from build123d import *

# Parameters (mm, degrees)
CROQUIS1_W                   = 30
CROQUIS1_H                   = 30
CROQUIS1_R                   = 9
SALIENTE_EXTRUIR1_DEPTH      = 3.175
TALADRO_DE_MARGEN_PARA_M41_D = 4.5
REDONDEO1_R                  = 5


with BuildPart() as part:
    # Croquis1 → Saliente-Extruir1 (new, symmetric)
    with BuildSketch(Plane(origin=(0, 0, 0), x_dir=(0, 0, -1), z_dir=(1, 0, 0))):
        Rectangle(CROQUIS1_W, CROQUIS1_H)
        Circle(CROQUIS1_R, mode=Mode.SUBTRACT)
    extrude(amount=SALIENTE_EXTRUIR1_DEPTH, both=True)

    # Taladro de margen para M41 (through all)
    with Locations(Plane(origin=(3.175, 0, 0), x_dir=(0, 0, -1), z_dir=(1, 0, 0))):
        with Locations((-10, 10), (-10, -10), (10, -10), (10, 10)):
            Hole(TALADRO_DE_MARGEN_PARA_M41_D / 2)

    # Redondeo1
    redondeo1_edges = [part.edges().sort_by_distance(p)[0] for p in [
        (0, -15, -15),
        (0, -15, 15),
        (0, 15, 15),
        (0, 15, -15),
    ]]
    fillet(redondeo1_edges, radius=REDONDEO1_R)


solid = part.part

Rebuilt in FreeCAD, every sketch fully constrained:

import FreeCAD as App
import Part
import Sketcher

V = App.Vector
Q = App.Units.Quantity


def edges_at(feature, points):
    """Names of the edges that pass closest to the given points."""
    edges = feature.Shape.Edges
    near = lambda p: min(range(len(edges)), key=lambda i: edges[i].distToShape(Part.Vertex(*p))[0])
    return sorted({f"Edge{near(p) + 1}" for p in points})


def add_polygon(sketch, points):
    """Adds a closed chain of lines whose ends are joined by coincident constraints."""
    first, n = sketch.GeometryCount, len(points)
    for a, b in zip(points, points[1:] + points[:1]):
        sketch.addGeometry(Part.LineSegment(App.Vector(*a, 0), App.Vector(*b, 0)), False)
    for i in range(n):
        sketch.addConstraint(Sketcher.Constraint("Coincident", first + i, 2, first + (i + 1) % n, 1))

doc = App.newDocument("Part")
body = doc.addObject("PartDesign::Body", "Body")

# Sketch on YZ plane
sketch1 = doc.addObject("Sketcher::SketchObject", "Sketch")
body.addObject(sketch1)
sketch1.AttachmentSupport = (doc.YZ_Plane, [""])
sketch1.MapMode = "FlatFace"
add_polygon(sketch1, [(15, 15), (-15, 15), (-15, -15), (15, -15)])  # lines 0-3
sketch1.addGeometry(Part.Circle(V(0, 0, 0), V(0, 0, 1), 9), False)  # 4
sketch1.addConstraint(Sketcher.Constraint("Horizontal", 0))
sketch1.addConstraint(Sketcher.Constraint("Vertical", 1))
sketch1.addConstraint(Sketcher.Constraint("Horizontal", 2))
sketch1.addConstraint(Sketcher.Constraint("Vertical", 3))
sketch1.addConstraint(Sketcher.Constraint("Coincident", 4, 3, -1, 1))
sketch1.addConstraint(Sketcher.Constraint("Symmetric", 0, 2, 2, 2, -1, 1))
sketch1.addConstraint(Sketcher.Constraint("Equal", 2, 1))
sketch1.addConstraint(Sketcher.Constraint("Diameter", 4, Q("18 mm")))
sketch1.addConstraint(Sketcher.Constraint("DistanceX", 0, 2, 0, 1, Q("30 mm")))
pad1 = doc.addObject("PartDesign::Pad", "Pad")
body.addObject(pad1)
pad1.Profile = sketch1
pad1.Length = 6.35
pad1.Midplane = True

# Sketch on YZ plane
sketch2 = doc.addObject("Sketcher::SketchObject", "Sketch001")
body.addObject(sketch2)
sketch2.AttachmentSupport = (doc.YZ_Plane, [""])
sketch2.MapMode = "FlatFace"
sketch2.AttachmentOffset = App.Placement(V(0, 0, 3.175), App.Rotation())
sketch2.addGeometry(Part.Circle(V(10, 10, 0), V(0, 0, 1), 2.25), False)
sketch2.addGeometry(Part.Circle(V(-10, 10, 0), V(0, 0, 1), 2.25), False)
sketch2.addGeometry(Part.Circle(V(-10, -10, 0), V(0, 0, 1), 2.25), False)
sketch2.addGeometry(Part.Circle(V(10, -10, 0), V(0, 0, 1), 2.25), False)
sketch2.addConstraint(Sketcher.Constraint("Equal", 0, 1))
sketch2.addConstraint(Sketcher.Constraint("Equal", 1, 2))
sketch2.addConstraint(Sketcher.Constraint("Equal", 2, 3))
sketch2.addConstraint(Sketcher.Constraint("Symmetric", 0, 3, 2, 3, -1, 1))
sketch2.addConstraint(Sketcher.Constraint("Symmetric", 1, 3, 3, 3, -1, 1))
sketch2.addConstraint(Sketcher.Constraint("Symmetric", 0, 3, 1, 3, -2))
sketch2.addConstraint(Sketcher.Constraint("Diameter", 0, Q("4.5 mm")))
sketch2.addConstraint(Sketcher.Constraint("DistanceX", -1, 1, 0, 3, Q("10 mm")))
sketch2.addConstraint(Sketcher.Constraint("DistanceY", -1, 1, 0, 3, Q("10 mm")))
doc.recompute()
hole = doc.addObject("PartDesign::Hole", "Hole")
body.addObject(hole)
hole.Profile = sketch2
hole.ThreadType = "None"
hole.Diameter = 4.5
hole.DepthType = "ThroughAll"
doc.recompute()

fillet = doc.addObject("PartDesign::Fillet", "Fillet")
body.addObject(fillet)
fillet.Base = (hole, edges_at(hole, [
    (0, -15, -15),
    (0, -15, 15),
    (0, 15, 15),
    (0, 15, -15),
]))
fillet.Radius = 5

doc.recompute()
